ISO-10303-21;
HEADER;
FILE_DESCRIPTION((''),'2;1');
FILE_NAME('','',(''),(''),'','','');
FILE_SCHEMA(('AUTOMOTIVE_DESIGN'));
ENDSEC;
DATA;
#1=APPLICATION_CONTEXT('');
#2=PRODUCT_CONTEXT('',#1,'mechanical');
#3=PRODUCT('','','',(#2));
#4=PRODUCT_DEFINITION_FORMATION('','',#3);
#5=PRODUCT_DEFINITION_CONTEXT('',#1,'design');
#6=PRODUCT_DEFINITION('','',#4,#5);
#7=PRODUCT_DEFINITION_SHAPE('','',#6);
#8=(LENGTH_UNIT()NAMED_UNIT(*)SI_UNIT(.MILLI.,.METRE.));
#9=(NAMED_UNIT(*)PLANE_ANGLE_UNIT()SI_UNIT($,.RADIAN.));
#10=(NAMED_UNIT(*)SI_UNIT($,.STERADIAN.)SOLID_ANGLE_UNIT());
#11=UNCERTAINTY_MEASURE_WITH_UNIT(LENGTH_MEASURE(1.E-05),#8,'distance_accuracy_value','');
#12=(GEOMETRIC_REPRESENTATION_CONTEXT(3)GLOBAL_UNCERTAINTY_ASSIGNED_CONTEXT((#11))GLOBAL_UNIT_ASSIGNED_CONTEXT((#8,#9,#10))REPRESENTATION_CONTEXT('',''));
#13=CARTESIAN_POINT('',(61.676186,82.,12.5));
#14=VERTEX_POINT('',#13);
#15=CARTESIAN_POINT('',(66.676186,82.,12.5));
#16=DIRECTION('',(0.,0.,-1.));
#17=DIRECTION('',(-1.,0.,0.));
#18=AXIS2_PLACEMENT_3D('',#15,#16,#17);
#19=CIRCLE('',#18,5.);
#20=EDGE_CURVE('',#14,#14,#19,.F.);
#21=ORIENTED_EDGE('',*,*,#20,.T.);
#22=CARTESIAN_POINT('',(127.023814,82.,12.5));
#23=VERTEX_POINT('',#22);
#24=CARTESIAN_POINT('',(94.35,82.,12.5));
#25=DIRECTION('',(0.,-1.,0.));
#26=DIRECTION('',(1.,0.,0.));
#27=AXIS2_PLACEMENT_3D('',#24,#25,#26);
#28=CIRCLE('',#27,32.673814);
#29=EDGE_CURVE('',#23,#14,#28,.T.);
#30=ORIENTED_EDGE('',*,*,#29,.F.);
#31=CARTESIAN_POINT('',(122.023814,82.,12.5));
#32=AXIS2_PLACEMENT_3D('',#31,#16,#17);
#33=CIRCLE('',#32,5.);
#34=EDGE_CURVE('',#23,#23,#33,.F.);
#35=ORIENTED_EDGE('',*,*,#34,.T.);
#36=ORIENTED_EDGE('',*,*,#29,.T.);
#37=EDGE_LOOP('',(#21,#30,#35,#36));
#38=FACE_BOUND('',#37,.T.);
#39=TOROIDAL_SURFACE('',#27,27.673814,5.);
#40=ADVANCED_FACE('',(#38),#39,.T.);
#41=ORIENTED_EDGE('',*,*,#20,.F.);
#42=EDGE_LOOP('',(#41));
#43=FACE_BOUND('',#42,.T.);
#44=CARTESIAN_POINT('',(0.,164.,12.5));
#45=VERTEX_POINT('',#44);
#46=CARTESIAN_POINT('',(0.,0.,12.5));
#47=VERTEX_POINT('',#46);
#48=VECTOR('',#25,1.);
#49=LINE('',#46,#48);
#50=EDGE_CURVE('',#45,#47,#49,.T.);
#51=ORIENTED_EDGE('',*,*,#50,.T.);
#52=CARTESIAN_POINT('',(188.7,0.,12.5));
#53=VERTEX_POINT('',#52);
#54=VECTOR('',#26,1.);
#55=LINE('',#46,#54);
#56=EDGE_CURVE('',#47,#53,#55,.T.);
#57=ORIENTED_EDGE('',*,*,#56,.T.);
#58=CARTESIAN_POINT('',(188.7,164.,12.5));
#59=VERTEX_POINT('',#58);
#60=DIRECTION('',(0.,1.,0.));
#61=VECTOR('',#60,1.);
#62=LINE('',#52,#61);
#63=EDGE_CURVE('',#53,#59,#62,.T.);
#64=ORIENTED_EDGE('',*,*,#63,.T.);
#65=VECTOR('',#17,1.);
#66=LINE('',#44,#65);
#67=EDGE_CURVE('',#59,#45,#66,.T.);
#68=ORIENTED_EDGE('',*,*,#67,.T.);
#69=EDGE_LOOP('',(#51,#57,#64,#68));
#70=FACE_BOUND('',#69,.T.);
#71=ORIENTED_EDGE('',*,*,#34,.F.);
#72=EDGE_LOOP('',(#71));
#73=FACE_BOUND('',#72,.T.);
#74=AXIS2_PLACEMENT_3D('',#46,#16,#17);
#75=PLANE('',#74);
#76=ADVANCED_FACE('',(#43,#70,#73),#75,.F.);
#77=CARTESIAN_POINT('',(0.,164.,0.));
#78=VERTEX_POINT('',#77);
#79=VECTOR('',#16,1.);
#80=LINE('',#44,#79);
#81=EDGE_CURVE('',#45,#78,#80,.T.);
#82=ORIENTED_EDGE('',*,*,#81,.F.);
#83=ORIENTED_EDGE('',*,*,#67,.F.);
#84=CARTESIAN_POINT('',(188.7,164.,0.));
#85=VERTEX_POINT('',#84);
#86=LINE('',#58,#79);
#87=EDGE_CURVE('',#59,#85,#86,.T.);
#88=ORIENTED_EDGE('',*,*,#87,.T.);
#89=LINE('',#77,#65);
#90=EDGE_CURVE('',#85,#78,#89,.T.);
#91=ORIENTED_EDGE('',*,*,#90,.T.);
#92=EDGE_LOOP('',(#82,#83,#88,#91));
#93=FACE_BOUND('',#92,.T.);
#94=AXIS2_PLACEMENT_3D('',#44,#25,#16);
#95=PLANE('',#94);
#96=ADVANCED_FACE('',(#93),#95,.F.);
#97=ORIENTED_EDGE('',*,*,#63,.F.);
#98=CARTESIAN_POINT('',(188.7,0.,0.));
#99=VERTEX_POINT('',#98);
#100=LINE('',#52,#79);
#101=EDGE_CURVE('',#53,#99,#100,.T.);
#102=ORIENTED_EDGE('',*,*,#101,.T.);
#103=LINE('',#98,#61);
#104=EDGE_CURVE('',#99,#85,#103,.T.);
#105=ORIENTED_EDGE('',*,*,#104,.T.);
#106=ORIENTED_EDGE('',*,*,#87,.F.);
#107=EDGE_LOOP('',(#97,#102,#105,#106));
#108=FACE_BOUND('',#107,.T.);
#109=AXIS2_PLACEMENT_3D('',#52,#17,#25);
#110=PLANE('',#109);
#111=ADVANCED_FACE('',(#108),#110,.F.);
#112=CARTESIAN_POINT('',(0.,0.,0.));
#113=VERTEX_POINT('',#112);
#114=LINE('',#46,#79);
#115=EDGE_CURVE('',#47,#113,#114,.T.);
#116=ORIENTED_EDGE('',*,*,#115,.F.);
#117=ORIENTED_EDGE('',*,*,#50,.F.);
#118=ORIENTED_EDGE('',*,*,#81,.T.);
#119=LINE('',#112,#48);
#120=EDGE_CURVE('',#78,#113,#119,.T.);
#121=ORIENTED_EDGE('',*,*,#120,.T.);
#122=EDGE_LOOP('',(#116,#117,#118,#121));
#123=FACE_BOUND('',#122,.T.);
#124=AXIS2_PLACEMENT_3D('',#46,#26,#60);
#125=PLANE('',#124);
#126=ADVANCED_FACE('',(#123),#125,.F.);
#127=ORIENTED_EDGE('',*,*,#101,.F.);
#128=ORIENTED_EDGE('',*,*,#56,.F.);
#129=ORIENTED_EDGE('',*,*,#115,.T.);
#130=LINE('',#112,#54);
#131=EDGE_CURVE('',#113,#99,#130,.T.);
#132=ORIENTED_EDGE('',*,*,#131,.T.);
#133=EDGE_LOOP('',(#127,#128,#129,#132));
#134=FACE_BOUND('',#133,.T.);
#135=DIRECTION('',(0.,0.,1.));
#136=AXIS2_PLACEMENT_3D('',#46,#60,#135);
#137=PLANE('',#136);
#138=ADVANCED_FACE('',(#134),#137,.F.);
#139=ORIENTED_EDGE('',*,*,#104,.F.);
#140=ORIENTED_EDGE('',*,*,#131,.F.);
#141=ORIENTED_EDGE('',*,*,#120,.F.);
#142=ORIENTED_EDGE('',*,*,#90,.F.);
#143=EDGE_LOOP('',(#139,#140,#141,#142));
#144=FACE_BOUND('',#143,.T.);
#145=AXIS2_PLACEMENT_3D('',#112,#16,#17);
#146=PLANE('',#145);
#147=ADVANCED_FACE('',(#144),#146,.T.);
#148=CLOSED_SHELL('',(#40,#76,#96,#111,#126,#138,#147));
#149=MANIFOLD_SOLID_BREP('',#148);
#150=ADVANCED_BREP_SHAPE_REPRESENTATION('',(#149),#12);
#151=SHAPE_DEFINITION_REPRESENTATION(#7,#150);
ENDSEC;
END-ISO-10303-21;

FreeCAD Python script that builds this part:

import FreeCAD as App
import Part
import Sketcher
from FreeCAD import Vector


def add_polygon(sketch, points):
    """Adds a closed chain of lines whose ends are joined by coincident constraints."""
    first, n = sketch.GeometryCount, len(points)
    for a, b in zip(points, points[1:] + points[:1]):
        sketch.addGeometry(Part.LineSegment(App.Vector(*a, 0), App.Vector(*b, 0)), False)
    for i in range(n):
        sketch.addConstraint(Sketcher.Constraint("Coincident", first + i, 2, first + (i + 1) % n, 1))

doc = App.newDocument("Part")
body = doc.addObject("PartDesign::Body", "Body")

# Sketch on XY plane
sketch1 = doc.addObject("Sketcher::SketchObject", "Sketch")
body.addObject(sketch1)
sketch1.AttachmentSupport = (doc.XY_Plane, [""])
sketch1.MapMode = "FlatFace"
add_polygon(sketch1, [(0, 164), (0, 0), (189, 0), (189, 164)])  # lines 0-3
sketch1.addConstraint(Sketcher.Constraint("Vertical", 0))
sketch1.addConstraint(Sketcher.Constraint("Horizontal", 1))
sketch1.addConstraint(Sketcher.Constraint("Vertical", 2))
sketch1.addConstraint(Sketcher.Constraint("Horizontal", 3))
sketch1.addConstraint(Sketcher.Constraint("Coincident", 0, 2, -1, 1))
sketch1.addConstraint(Sketcher.Constraint("DistanceY", 0, 2, 0, 1, 164.0))
sketch1.addConstraint(Sketcher.Constraint("DistanceX", 1, 1, 1, 2, 188.7))
pad1 = doc.addObject("PartDesign::Pad", "Pad")
body.addObject(pad1)
pad1.Profile = sketch1
pad1.Length = 12.5

# Sketch on XY plane
sketch2 = doc.addObject("Sketcher::SketchObject", "Sketch001")
body.addObject(sketch2)
sketch2.AttachmentSupport = (doc.XY_Plane, [""])
sketch2.MapMode = "FlatFace"
sketch2.AttachmentOffset = App.Placement(Vector(0, 0, 12.5), App.Rotation())
sketch2.addGeometry(Part.Circle(Vector(67, 82, 0), Vector(0, 0, 1), 5), False)
sketch2.addGeometry(Part.LineSegment(Vector(94, 82, 0), Vector(94, 92, 0)), True)  # axis
sketch2.addConstraint(Sketcher.Constraint("Vertical", 1))
sketch2.addConstraint(Sketcher.Constraint("Horizontal", 0, 3, 1, 1))
sketch2.addConstraint(Sketcher.Constraint("Diameter", 0, 10.0))
sketch2.addConstraint(Sketcher.Constraint("DistanceY", 1, 1, 1, 2, 10.0))
sketch2.addConstraint(Sketcher.Constraint("DistanceY", -1, 1, 0, 3, 82.0))
sketch2.addConstraint(Sketcher.Constraint("DistanceX", -1, 1, 1, 1, 94.35))
sketch2.addConstraint(Sketcher.Constraint("DistanceX", -1, 1, 0, 3, 66.676186))
revolution = doc.addObject("PartDesign::Revolution", "Revolution")
body.addObject(revolution)
revolution.Profile = sketch2
revolution.ReferenceAxis = (sketch2, ["Axis0"])
revolution.Angle = 180

doc.recompute()
